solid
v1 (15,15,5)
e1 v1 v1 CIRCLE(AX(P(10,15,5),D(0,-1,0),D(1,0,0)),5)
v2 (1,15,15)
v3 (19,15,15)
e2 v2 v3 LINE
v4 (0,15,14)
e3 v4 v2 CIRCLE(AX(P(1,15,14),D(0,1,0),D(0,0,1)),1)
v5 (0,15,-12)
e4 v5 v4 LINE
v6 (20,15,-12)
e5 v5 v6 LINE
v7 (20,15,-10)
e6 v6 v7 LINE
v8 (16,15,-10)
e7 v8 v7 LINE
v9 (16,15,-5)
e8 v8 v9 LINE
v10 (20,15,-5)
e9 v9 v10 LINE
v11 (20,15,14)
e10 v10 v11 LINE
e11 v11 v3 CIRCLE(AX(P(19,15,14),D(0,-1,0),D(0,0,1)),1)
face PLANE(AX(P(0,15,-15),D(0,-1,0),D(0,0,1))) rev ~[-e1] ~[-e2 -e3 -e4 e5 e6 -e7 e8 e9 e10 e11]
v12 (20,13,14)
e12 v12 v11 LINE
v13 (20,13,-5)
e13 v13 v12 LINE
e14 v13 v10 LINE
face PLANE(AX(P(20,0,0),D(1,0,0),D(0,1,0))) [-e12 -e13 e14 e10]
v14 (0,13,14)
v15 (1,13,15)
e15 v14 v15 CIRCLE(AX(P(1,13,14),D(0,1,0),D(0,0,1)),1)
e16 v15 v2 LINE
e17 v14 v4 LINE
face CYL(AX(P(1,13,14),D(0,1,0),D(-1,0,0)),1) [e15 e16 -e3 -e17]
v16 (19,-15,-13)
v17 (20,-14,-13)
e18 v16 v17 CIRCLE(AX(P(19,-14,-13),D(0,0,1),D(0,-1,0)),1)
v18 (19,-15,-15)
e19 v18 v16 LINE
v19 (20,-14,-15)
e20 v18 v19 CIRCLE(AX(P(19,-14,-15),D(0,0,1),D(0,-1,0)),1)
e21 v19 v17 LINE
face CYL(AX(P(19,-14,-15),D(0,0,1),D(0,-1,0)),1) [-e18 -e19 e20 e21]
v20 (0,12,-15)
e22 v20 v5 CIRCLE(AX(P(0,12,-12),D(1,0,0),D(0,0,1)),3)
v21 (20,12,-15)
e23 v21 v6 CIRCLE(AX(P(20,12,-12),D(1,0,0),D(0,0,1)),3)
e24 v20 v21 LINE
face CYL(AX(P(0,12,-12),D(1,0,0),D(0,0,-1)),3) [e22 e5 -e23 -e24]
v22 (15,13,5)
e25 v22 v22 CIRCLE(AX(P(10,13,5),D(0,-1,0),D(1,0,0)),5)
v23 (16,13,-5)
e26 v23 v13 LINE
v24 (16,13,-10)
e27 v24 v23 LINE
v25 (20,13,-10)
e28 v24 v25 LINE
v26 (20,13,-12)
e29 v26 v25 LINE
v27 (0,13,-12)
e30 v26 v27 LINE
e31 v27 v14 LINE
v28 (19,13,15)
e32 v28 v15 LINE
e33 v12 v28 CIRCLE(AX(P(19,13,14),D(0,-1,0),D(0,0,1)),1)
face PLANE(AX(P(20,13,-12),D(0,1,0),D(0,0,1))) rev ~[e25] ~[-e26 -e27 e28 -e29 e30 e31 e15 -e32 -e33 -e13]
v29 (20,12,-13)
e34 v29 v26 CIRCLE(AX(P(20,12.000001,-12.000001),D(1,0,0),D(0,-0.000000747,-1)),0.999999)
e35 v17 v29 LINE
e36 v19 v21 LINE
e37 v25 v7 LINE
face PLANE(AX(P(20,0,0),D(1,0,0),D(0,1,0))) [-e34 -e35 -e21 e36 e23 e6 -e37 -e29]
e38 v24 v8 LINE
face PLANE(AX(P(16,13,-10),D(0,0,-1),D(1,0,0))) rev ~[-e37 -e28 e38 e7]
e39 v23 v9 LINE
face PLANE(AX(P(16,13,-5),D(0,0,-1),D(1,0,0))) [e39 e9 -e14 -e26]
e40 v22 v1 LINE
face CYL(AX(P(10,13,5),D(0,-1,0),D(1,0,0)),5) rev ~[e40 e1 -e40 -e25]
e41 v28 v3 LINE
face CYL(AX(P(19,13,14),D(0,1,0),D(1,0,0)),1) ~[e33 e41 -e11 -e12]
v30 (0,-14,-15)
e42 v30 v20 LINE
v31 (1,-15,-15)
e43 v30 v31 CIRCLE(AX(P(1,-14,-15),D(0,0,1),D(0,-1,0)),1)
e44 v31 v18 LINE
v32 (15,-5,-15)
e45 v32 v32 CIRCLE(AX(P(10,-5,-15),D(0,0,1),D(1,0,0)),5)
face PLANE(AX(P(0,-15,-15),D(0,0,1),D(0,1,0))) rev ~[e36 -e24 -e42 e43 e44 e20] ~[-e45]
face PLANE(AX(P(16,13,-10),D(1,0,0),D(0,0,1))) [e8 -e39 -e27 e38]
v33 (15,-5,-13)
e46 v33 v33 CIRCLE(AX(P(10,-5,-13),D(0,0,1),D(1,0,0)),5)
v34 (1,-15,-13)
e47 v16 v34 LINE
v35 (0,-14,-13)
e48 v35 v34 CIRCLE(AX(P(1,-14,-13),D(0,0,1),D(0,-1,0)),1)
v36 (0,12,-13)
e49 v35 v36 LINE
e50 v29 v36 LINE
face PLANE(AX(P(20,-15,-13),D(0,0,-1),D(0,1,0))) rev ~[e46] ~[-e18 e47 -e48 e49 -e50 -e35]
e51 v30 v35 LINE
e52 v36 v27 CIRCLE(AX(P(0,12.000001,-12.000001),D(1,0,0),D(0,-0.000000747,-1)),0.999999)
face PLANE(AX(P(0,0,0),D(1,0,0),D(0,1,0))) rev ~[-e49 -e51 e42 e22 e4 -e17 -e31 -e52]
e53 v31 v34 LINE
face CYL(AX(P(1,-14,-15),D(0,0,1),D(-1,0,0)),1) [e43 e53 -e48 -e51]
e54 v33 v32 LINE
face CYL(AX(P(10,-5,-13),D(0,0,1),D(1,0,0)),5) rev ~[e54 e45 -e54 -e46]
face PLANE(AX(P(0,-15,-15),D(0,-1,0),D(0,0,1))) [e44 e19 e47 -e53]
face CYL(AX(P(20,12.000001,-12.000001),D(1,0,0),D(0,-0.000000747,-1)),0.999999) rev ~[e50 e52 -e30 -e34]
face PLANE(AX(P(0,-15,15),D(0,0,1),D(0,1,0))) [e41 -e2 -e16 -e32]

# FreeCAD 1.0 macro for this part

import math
import FreeCAD as App
import Part
import Sketcher

V = App.Vector


def edges_at(feature, points):
    """Names of the edges that pass closest to the given points."""
    edges = feature.Shape.Edges
    near = lambda p: min(range(len(edges)), key=lambda i: edges[i].distToShape(Part.Vertex(*p))[0])
    return sorted({f"Edge{near(p) + 1}" for p in points})

doc = App.newDocument("Part")
params = doc.addObject("Spreadsheet::Sheet", "Params")
for row, (alias, value) in enumerate([
    ("sketch1_width", "30 mm"),
    ("pad1_length", "20 mm"),
    ("fillet_radius", "3 mm"),
    ("sketch2_radius", "0.999999 mm"),
    ("sketch2_width", "27 mm"),
    ("fillet2_radius", "1 mm"),
    ("sketch3_diameter", "10 mm"),
    ("sketch4_diameter", "10 mm"),
    ("sketch5_width", "4 mm"),
    ("sketch5_height", "5 mm"),
], start=1):
    params.set(f"A{row}", alias)
    params.set(f"B{row}", "=" + value)
    params.setAlias(f"B{row}", alias)

body = doc.addObject("PartDesign::Body", "Body")

# Sketch on YZ plane
sketch1 = body.newObject("Sketcher::SketchObject", "Sketch")
sketch1.AttachmentSupport = (doc.getObject("YZ_Plane"), [""])
sketch1.MapMode = "FlatFace"
sketch1.addGeometry([
    Part.LineSegment(V(-15, 15, 0), V(-15, -15, 0)),
    Part.LineSegment(V(-15, -15, 0), V(15, -15, 0)),
    Part.LineSegment(V(15, -15, 0), V(15, 15, 0)),
    Part.LineSegment(V(15, 15, 0), V(-15, 15, 0)),
], False)
sketch1.addConstraint([
    Sketcher.Constraint("Coincident", 0, 2, 1, 1),
    Sketcher.Constraint("Coincident", 1, 2, 2, 1),
    Sketcher.Constraint("Coincident", 2, 2, 3, 1),
    Sketcher.Constraint("Coincident", 3, 2, 0, 1),
    Sketcher.Constraint("Vertical", 0),
    Sketcher.Constraint("Horizontal", 1),
    Sketcher.Constraint("Vertical", 2),
    Sketcher.Constraint("Horizontal", 3),
    Sketcher.Constraint("Symmetric", 0, 2, 2, 2, -1, 1),
    Sketcher.Constraint("Equal", 3, 0),
    Sketcher.Constraint("DistanceX", 1, 1, 1, 2, 30.0),
])
sketch1.setExpression("Constraints[10]", "Params.sketch1_width")
pad1 = body.newObject("PartDesign::Pad", "Pad")
pad1.Profile = sketch1
pad1.setExpression("Length", "Params.pad1_length")
doc.recompute()

fillet = body.newObject("PartDesign::Fillet", "Fillet")
fillet.Base = (pad1, edges_at(pad1, [(10, 15, -15)]))
fillet.setExpression("Radius", "Params.fillet_radius")

# Sketch on YZ plane
sketch2 = body.newObject("Sketcher::SketchObject", "Sketch001")
sketch2.AttachmentSupport = (doc.getObject("YZ_Plane"), [""])
sketch2.MapMode = "FlatFace"
sketch2.AttachmentOffset = App.Placement(V(0, 0, 20), App.Rotation())
sketch2.addGeometry([
    Part.LineSegment(V(-15, 15, 0), V(-15, -13, 0)),  # 0
    Part.LineSegment(V(-15, -13, 0), V(12, -13, 0)),  # 1
    Part.ArcOfCircle(Part.Circle(V(12, -12, 0), V(0, 0, 1), 1), math.radians(-90), math.radians(0)),  # 2
    Part.LineSegment(V(13, -12, 0), V(13, 15, 0)),  # 3
    Part.LineSegment(V(13, 15, 0), V(-15, 15, 0)),  # 4
], False)
sketch2.addConstraint([
    Sketcher.Constraint("Coincident", 0, 2, 1, 1),
    Sketcher.Constraint("Tangent", 1, 2, 2, 1),
    Sketcher.Constraint("Tangent", 2, 2, 3, 1),
    Sketcher.Constraint("Coincident", 3, 2, 4, 1),
    Sketcher.Constraint("Coincident", 4, 2, 0, 1),
    Sketcher.Constraint("Vertical", 0),
    Sketcher.Constraint("Horizontal", 1),
    Sketcher.Constraint("Vertical", 3),
    Sketcher.Constraint("Horizontal", 4),
    Sketcher.Constraint("Equal", 4, 0),
    Sketcher.Constraint("Radius", 2, 0.999999),
    Sketcher.Constraint("DistanceX", 1, 1, 1, 2, 27.0),
    Sketcher.Constraint("DistanceX", -1, 1, 2, 3, 12.000001),
    Sketcher.Constraint("DistanceY", 2, 3, -1, 1, 12.000001),
])
sketch2.setExpression("Constraints[10]", "Params.sketch2_radius")
sketch2.setExpression("Constraints[11]", "Params.sketch2_width")
pocket1 = body.newObject("PartDesign::Pocket", "Pocket")
pocket1.Profile = sketch2
pocket1.Type = "ThroughAll"
doc.recompute()

fillet2 = body.newObject("PartDesign::Fillet", "Fillet001")
fillet2.Base = (pocket1, edges_at(pocket1, [
    (20, -15, -14),
    (20, 14, 15),
    (0, 14, 15),
    (0, -15, -14),
]))
fillet2.setExpression("Radius", "Params.fillet2_radius")

# Sketch on XY plane
sketch3 = body.newObject("Sketcher::SketchObject", "Sketch002")
sketch3.AttachmentSupport = (doc.getObject("XY_Plane"), [""])
sketch3.MapMode = "FlatFace"
sketch3.AttachmentOffset = App.Placement(V(0, 0, -13), App.Rotation())
sketch3.addGeometry(Part.Circle(V(10, -5, 0), V(0, 0, 1), 5), False)
sketch3.addConstraint([
    Sketcher.Constraint("Diameter", 0, 10.0),
    Sketcher.Constraint("DistanceX", -1, 1, 0, 3, 10.0),
    Sketcher.Constraint("DistanceY", 0, 3, -1, 1, 5.0),
])
sketch3.setExpression("Constraints[0]", "Params.sketch3_diameter")
pocket2 = body.newObject("PartDesign::Pocket", "Pocket001")
pocket2.Profile = sketch3
pocket2.Type = "ThroughAll"

# Sketch on XZ plane
sketch4 = body.newObject("Sketcher::SketchObject", "Sketch003")
sketch4.AttachmentSupport = (doc.getObject("XZ_Plane"), [""])
sketch4.MapMode = "FlatFace"
sketch4.AttachmentOffset = App.Placement(V(0, 0, -13), App.Rotation())
sketch4.addGeometry(Part.Circle(V(10, 5, 0), V(0, 0, 1), 5), False)
sketch4.addConstraint([
    Sketcher.Constraint("Diameter", 0, 10.0),
    Sketcher.Constraint("DistanceX", -1, 1, 0, 3, 10.0),
    Sketcher.Constraint("DistanceY", -1, 1, 0, 3, 5.0),
])
sketch4.setExpression("Constraints[0]", "Params.sketch4_diameter")
pocket3 = body.newObject("PartDesign::Pocket", "Pocket002")
pocket3.Profile = sketch4
pocket3.Type = "ThroughAll"

# Sketch on XZ plane
sketch5 = body.newObject("Sketcher::SketchObject", "Sketch004")
sketch5.AttachmentSupport = (doc.getObject("XZ_Plane"), [""])
sketch5.MapMode = "FlatFace"
sketch5.AttachmentOffset = App.Placement(V(0, 0, -13), App.Rotation())
sketch5.addGeometry([
    Part.LineSegment(V(16, -5, 0), V(16, -10, 0)),
    Part.LineSegment(V(16, -10, 0), V(20, -10, 0)),
    Part.LineSegment(V(20, -10, 0), V(20, -5, 0)),
    Part.LineSegment(V(20, -5, 0), V(16, -5, 0)),
], False)
sketch5.addConstraint([
    Sketcher.Constraint("Coincident", 0, 2, 1, 1),
    Sketcher.Constraint("Coincident", 1, 2, 2, 1),
    Sketcher.Constraint("Coincident", 2, 2, 3, 1),
    Sketcher.Constraint("Coincident", 3, 2, 0, 1),
    Sketcher.Constraint("Vertical", 0),
    Sketcher.Constraint("Horizontal", 1),
    Sketcher.Constraint("Vertical", 2),
    Sketcher.Constraint("Horizontal", 3),
    Sketcher.Constraint("DistanceX", 1, 1, 1, 2, 4.0),
    Sketcher.Constraint("DistanceY", 0, 2, 0, 1, 5.0),
    Sketcher.Constraint("DistanceX", -1, 1, 0, 2, 16.0),
    Sketcher.Constraint("DistanceY", 0, 2, -1, 1, 10.0),
])
sketch5.setExpression("Constraints[8]", "Params.sketch5_width")
sketch5.setExpression("Constraints[9]", "Params.sketch5_height")
pocket4 = body.newObject("PartDesign::Pocket", "Pocket003")
pocket4.Profile = sketch5
pocket4.Type = "ThroughAll"

doc.recompute()
